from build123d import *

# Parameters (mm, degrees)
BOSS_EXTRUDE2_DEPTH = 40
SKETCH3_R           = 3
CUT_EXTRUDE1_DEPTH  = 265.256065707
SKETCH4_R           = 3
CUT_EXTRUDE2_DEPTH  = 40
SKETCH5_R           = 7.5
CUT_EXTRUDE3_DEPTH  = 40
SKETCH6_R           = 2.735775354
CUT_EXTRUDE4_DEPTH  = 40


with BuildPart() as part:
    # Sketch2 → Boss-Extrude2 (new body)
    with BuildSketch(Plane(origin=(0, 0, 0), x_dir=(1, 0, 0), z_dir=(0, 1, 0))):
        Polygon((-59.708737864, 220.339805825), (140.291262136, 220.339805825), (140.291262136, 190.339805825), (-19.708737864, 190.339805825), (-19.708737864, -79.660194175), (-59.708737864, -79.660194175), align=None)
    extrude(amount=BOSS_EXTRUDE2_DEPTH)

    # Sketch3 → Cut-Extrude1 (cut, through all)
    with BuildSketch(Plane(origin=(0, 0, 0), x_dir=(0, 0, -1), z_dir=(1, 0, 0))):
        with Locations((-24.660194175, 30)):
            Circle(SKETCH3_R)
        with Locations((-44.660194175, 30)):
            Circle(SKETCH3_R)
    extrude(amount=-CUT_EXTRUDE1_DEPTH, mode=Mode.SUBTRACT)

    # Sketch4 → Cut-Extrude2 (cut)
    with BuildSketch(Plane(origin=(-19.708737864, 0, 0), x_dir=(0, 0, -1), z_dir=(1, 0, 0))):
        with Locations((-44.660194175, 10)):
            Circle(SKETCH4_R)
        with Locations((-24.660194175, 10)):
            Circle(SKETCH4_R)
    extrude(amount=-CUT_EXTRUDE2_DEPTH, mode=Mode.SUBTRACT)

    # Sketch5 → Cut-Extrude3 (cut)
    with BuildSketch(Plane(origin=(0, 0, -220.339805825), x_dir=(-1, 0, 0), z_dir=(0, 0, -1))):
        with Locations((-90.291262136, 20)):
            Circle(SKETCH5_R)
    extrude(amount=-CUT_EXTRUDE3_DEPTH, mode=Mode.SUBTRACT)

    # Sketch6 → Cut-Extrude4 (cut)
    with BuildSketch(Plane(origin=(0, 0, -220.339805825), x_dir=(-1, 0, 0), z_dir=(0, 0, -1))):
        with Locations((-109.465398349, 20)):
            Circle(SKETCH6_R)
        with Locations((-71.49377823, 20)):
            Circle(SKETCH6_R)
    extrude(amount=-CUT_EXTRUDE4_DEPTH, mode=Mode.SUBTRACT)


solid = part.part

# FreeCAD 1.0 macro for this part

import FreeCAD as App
import Part
import Sketcher

V = App.Vector
Q = App.Units.Quantity


def add_polygon(sketch, points):
    """Adds a closed chain of lines whose ends are joined by coincident constraints."""
    first, n = sketch.GeometryCount, len(points)
    for a, b in zip(points, points[1:] + points[:1]):
        sketch.addGeometry(Part.LineSegment(App.Vector(*a, 0), App.Vector(*b, 0)), False)
    for i in range(n):
        sketch.addConstraint(Sketcher.Constraint("Coincident", first + i, 2, first + (i + 1) % n, 1))

doc = App.newDocument("Part")
body = doc.addObject("PartDesign::Body", "Body")

# Sketch on XZ plane
sketch1 = doc.addObject("Sketcher::SketchObject", "Sketch")
body.addObject(sketch1)
sketch1.AttachmentSupport = (doc.XZ_Plane, [""])
sketch1.MapMode = "FlatFace"
add_polygon(sketch1, [(140, -220), (-60, -220), (-60, 80), (-20, 80), (-20, -190), (140, -190)])  # lines 0-5
sketch1.addConstraint([
    Sketcher.Constraint("Horizontal", 0),
    Sketcher.Constraint("Vertical", 1),
    Sketcher.Constraint("Horizontal", 2),
    Sketcher.Constraint("Vertical", 3),
    Sketcher.Constraint("Horizontal", 4),
    Sketcher.Constraint("Vertical", 5),
    Sketcher.Constraint("DistanceX", 0, 2, 0, 1, Q("200 mm")),
    Sketcher.Constraint("DistanceX", 2, 1, 2, 2, Q("40 mm")),
    Sketcher.Constraint("DistanceY", 1, 1, 1, 2, Q("300 mm")),
    Sketcher.Constraint("DistanceY", 3, 2, 3, 1, Q("270 mm")),
    Sketcher.Constraint("DistanceX", 0, 2, -1, 1, Q("59.708738 mm")),
    Sketcher.Constraint("DistanceY", 0, 2, -1, 1, Q("220.339806 mm")),
])
pad1 = doc.addObject("PartDesign::Pad", "Pad")
body.addObject(pad1)
pad1.Profile = sketch1
pad1.Length = 40
pad1.Reversed = True

# Sketch on YZ plane
sketch2 = doc.addObject("Sketcher::SketchObject", "Sketch001")
body.addObject(sketch2)
sketch2.AttachmentSupport = (doc.YZ_Plane, [""])
sketch2.MapMode = "FlatFace"
sketch2.addGeometry([
    Part.Circle(V(30, 24.7, 0), V(0, 0, 1), 3),
    Part.Circle(V(30, 44.7, 0), V(0, 0, 1), 3),
], False)
sketch2.addConstraint([
    Sketcher.Constraint("Equal", 0, 1),
    Sketcher.Constraint("Vertical", 0, 3, 1, 3),
    Sketcher.Constraint("Diameter", 0, Q("6 mm")),
    Sketcher.Constraint("DistanceX", -1, 1, 0, 3, Q("30 mm")),
    Sketcher.Constraint("DistanceY", 0, 3, 1, 3, Q("20 mm")),
    Sketcher.Constraint("DistanceY", -1, 1, 0, 3, Q("24.660194 mm")),
])
pocket1 = doc.addObject("PartDesign::Pocket", "Pocket")
body.addObject(pocket1)
pocket1.Profile = sketch2
pocket1.Type = "ThroughAll"

# Sketch on YZ plane
sketch3 = doc.addObject("Sketcher::SketchObject", "Sketch002")
body.addObject(sketch3)
sketch3.AttachmentSupport = (doc.YZ_Plane, [""])
sketch3.MapMode = "FlatFace"
sketch3.AttachmentOffset = App.Placement(V(0, 0, -19.708738), App.Rotation())
sketch3.addGeometry([
    Part.Circle(V(10, 44.7, 0), V(0, 0, 1), 3),
    Part.Circle(V(10, 24.7, 0), V(0, 0, 1), 3),
], False)
sketch3.addConstraint([
    Sketcher.Constraint("Equal", 0, 1),
    Sketcher.Constraint("Vertical", 0, 3, 1, 3),
    Sketcher.Constraint("Diameter", 0, Q("6 mm")),
    Sketcher.Constraint("DistanceX", -1, 1, 0, 3, Q("10 mm")),
    Sketcher.Constraint("DistanceY", 1, 3, 0, 3, Q("20 mm")),
    Sketcher.Constraint("DistanceY", -1, 1, 0, 3, Q("44.660194 mm")),
])
pocket2 = doc.addObject("PartDesign::Pocket", "Pocket001")
body.addObject(pocket2)
pocket2.Profile = sketch3
pocket2.Length = 40

# Sketch on XY plane
sketch4 = doc.addObject("Sketcher::SketchObject", "Sketch003")
body.addObject(sketch4)
sketch4.AttachmentSupport = (doc.XY_Plane, [""])
sketch4.MapMode = "FlatFace"
sketch4.AttachmentOffset = App.Placement(V(0, 0, -220.339806), App.Rotation())
sketch4.addGeometry(Part.Circle(V(90, 20, 0), V(0, 0, 1), 8), False)
sketch4.addConstraint([
    Sketcher.Constraint("Diameter", 0, Q("15 mm")),
    Sketcher.Constraint("DistanceY", -1, 1, 0, 3, Q("20 mm")),
    Sketcher.Constraint("DistanceX", -1, 1, 0, 3, Q("90.291262 mm")),
])
pocket3 = doc.addObject("PartDesign::Pocket", "Pocket002")
body.addObject(pocket3)
pocket3.Profile = sketch4
pocket3.Length = 40
pocket3.Reversed = True

# Sketch on XY plane
sketch5 = doc.addObject("Sketcher::SketchObject", "Sketch004")
body.addObject(sketch5)
sketch5.AttachmentSupport = (doc.XY_Plane, [""])
sketch5.MapMode = "FlatFace"
sketch5.AttachmentOffset = App.Placement(V(0, 0, -220.339806), App.Rotation())
sketch5.addGeometry([
    Part.Circle(V(109.5, 20, 0), V(0, 0, 1), 2.7),
    Part.Circle(V(71.5, 20, 0), V(0, 0, 1), 2.7),
], False)
sketch5.addConstraint([
    Sketcher.Constraint("Equal", 0, 1),
    Sketcher.Constraint("Horizontal", 0, 3, 1, 3),
    Sketcher.Constraint("DistanceY", -1, 1, 0, 3, Q("20 mm")),
    Sketcher.Constraint("Diameter", 0, Q("5.471551 mm")),
    Sketcher.Constraint("DistanceX", -1, 1, 0, 3, Q("109.465398 mm")),
    Sketcher.Constraint("DistanceX", -1, 1, 1, 3, Q("71.493778 mm")),
])
pocket4 = doc.addObject("PartDesign::Pocket", "Pocket003")
body.addObject(pocket4)
pocket4.Profile = sketch5
pocket4.Length = 40
pocket4.Reversed = True

doc.recompute()
